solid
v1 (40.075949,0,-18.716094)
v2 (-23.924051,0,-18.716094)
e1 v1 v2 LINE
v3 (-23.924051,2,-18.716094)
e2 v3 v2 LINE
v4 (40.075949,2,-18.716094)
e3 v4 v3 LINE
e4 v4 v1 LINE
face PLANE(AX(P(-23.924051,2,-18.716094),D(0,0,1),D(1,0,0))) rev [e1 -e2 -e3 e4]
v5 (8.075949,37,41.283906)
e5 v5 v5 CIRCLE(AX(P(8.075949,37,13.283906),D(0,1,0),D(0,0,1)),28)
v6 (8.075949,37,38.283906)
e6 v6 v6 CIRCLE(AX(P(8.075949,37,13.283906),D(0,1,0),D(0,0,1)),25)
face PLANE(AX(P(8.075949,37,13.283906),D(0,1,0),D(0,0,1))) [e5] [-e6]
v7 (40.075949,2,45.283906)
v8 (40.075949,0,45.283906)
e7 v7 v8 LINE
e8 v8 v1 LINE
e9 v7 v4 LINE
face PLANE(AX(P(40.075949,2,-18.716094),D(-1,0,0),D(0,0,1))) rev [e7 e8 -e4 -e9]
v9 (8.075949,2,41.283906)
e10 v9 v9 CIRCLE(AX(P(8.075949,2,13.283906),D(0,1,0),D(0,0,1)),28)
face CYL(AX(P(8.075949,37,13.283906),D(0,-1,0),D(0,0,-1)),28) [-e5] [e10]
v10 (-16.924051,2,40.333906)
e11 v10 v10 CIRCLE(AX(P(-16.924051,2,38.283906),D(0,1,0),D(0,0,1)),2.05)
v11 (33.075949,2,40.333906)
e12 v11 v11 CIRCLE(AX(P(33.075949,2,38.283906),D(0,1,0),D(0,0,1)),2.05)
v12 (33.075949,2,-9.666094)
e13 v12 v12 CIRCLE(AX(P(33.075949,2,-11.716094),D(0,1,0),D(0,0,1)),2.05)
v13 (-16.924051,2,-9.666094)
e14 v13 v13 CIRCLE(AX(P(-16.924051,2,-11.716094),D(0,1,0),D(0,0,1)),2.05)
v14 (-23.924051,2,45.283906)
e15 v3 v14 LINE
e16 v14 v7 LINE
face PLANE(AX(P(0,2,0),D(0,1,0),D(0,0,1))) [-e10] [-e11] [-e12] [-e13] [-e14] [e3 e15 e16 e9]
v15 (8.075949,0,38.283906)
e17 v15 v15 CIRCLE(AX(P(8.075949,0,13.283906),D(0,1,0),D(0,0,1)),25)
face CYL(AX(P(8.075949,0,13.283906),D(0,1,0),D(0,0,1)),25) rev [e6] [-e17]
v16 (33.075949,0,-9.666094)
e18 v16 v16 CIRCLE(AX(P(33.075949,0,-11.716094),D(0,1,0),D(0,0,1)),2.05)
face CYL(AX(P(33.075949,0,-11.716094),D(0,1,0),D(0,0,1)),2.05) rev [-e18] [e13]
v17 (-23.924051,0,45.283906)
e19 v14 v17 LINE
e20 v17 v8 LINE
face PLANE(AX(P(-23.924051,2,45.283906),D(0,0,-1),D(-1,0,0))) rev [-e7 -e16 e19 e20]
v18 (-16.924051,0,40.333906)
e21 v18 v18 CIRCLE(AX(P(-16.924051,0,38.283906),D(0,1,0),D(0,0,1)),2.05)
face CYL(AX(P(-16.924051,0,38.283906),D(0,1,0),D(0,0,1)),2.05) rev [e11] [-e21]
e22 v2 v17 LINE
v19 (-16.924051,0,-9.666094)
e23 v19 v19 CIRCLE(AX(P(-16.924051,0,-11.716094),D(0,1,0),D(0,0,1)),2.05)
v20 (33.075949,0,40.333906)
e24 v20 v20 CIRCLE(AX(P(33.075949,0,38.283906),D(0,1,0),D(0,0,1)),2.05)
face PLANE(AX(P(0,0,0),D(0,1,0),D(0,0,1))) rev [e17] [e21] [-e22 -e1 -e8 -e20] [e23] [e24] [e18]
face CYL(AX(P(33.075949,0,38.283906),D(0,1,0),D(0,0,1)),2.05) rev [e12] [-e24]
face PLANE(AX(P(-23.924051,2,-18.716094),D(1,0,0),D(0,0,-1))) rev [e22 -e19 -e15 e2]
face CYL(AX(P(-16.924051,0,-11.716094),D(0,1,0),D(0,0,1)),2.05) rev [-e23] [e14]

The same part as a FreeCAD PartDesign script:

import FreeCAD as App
import Part
import Sketcher

doc = App.newDocument("Part")
params = doc.addObject("Spreadsheet::Sheet", "Params")
for row, (alias, value) in enumerate([
    ("sketch1_width", "64 mm"),
    ("pad1_length", "2 mm"),
    ("sketch2_diameter", "50 mm"),
    ("sketch2_diameter2", "4.1 mm"),
    ("pocket1_length", "2 mm"),
    ("sketch3_diameter", "56 mm"),
    ("sketch3_diameter2", "50 mm"),
    ("pad2_length", "35 mm"),
], start=1):
    params.set(f"A{row}", alias)
    params.set(f"B{row}", "=" + value)
    params.setAlias(f"B{row}", alias)

body = doc.addObject("PartDesign::Body", "Body")

# Sketch on XZ plane
sketch1 = body.newObject("Sketcher::SketchObject", "Sketch")
sketch1.AttachmentSupport = (doc.getObject("XZ_Plane"), [""])
sketch1.MapMode = "FlatFace"
sketch1.addGeometry(Part.LineSegment(App.Vector(-24, -19, 0), App.Vector(-24, 45, 0)), False)
sketch1.addGeometry(Part.LineSegment(App.Vector(-24, 45, 0), App.Vector(40, 45, 0)), False)
sketch1.addGeometry(Part.LineSegment(App.Vector(40, 45, 0), App.Vector(40, -19, 0)), False)
sketch1.addGeometry(Part.LineSegment(App.Vector(40, -19, 0), App.Vector(-24, -19, 0)), False)
sketch1.addConstraint(Sketcher.Constraint("Coincident", 0, 2, 1, 1))
sketch1.addConstraint(Sketcher.Constraint("Coincident", 1, 2, 2, 1))
sketch1.addConstraint(Sketcher.Constraint("Coincident", 2, 2, 3, 1))
sketch1.addConstraint(Sketcher.Constraint("Coincident", 3, 2, 0, 1))
sketch1.addConstraint(Sketcher.Constraint("Vertical", 0))
sketch1.addConstraint(Sketcher.Constraint("Horizontal", 1))
sketch1.addConstraint(Sketcher.Constraint("Vertical", 2))
sketch1.addConstraint(Sketcher.Constraint("Horizontal", 3))
sketch1.addConstraint(Sketcher.Constraint("Equal", 3, 0))
sketch1.addConstraint(Sketcher.Constraint("DistanceX", 1, 1, 1, 2, 64.0))
sketch1.addConstraint(Sketcher.Constraint("DistanceX", 0, 2, -1, 1, 23.924051))
sketch1.addConstraint(Sketcher.Constraint("DistanceY", -1, 1, 0, 2, 45.283906))
sketch1.setExpression("Constraints[9]", "Params.sketch1_width")
pad1 = body.newObject("PartDesign::Pad", "Pad")
pad1.Profile = sketch1
pad1.setExpression("Length", "Params.pad1_length")
pad1.Reversed = True

# Sketch on XZ plane
sketch2 = body.newObject("Sketcher::SketchObject", "Sketch001")
sketch2.AttachmentSupport = (doc.getObject("XZ_Plane"), [""])
sketch2.MapMode = "FlatFace"
sketch2.AttachmentOffset = App.Placement(App.Vector(0, 0, -2), App.Rotation())
sketch2.addGeometry(Part.Circle(App.Vector(-16.9, -11.7, 0), App.Vector(0, 0, 1), 2), False)
sketch2.addGeometry(Part.Circle(App.Vector(33.1, -11.7, 0), App.Vector(0, 0, 1), 2), False)
sketch2.addGeometry(Part.Circle(App.Vector(-16.9, 38.3, 0), App.Vector(0, 0, 1), 2), False)
sketch2.addGeometry(Part.Circle(App.Vector(33.1, 38.3, 0), App.Vector(0, 0, 1), 2), False)
sketch2.addGeometry(Part.Circle(App.Vector(8.1, 13.3, 0), App.Vector(0, 0, 1), 25), False)
sketch2.addConstraint(Sketcher.Constraint("Equal", 0, 1))
sketch2.addConstraint(Sketcher.Constraint("Equal", 1, 2))
sketch2.addConstraint(Sketcher.Constraint("Equal", 2, 3))
sketch2.addConstraint(Sketcher.Constraint("Horizontal", 0, 3, 1, 3))
sketch2.addConstraint(Sketcher.Constraint("Horizontal", 2, 3, 3, 3))
sketch2.addConstraint(Sketcher.Constraint("Vertical", 0, 3, 2, 3))
sketch2.addConstraint(Sketcher.Constraint("Vertical", 1, 3, 3, 3))
sketch2.addConstraint(Sketcher.Constraint("Diameter", 4, 50.0))
sketch2.addConstraint(Sketcher.Constraint("Diameter", 0, 4.1))
sketch2.addConstraint(Sketcher.Constraint("DistanceX", 0, 3, 1, 3, 50.0))
sketch2.addConstraint(Sketcher.Constraint("DistanceY", 0, 3, 2, 3, 50.0))
sketch2.addConstraint(Sketcher.Constraint("DistanceX", 0, 3, 4, 3, 25.0))
sketch2.addConstraint(Sketcher.Constraint("DistanceY", 0, 3, 4, 3, 25.0))
sketch2.addConstraint(Sketcher.Constraint("DistanceX", 0, 3, -1, 1, 16.924051))
sketch2.addConstraint(Sketcher.Constraint("DistanceY", 0, 3, -1, 1, 11.716094))
sketch2.setExpression("Constraints[7]", "Params.sketch2_diameter")
sketch2.setExpression("Constraints[8]", "Params.sketch2_diameter2")
pocket1 = body.newObject("PartDesign::Pocket", "Pocket")
pocket1.Profile = sketch2
pocket1.setExpression("Length", "Params.pocket1_length")
pocket1.Reversed = True

# Sketch on XZ plane
sketch3 = body.newObject("Sketcher::SketchObject", "Sketch002")
sketch3.AttachmentSupport = (doc.getObject("XZ_Plane"), [""])
sketch3.MapMode = "FlatFace"
sketch3.AttachmentOffset = App.Placement(App.Vector(0, 0, -37), App.Rotation())
sketch3.addGeometry(Part.Circle(App.Vector(8, 13, 0), App.Vector(0, 0, 1), 28), False)
sketch3.addGeometry(Part.Circle(App.Vector(8, 13, 0), App.Vector(0, 0, 1), 25), False)
sketch3.addConstraint(Sketcher.Constraint("Coincident", 1, 3, 0, 3))
sketch3.addConstraint(Sketcher.Constraint("Diameter", 0, 56.0))
sketch3.addConstraint(Sketcher.Constraint("Diameter", 1, 50.0))
sketch3.addConstraint(Sketcher.Constraint("DistanceX", -1, 1, 0, 3, 8.075949))
sketch3.addConstraint(Sketcher.Constraint("DistanceY", -1, 1, 0, 3, 13.283906))
sketch3.setExpression("Constraints[1]", "Params.sketch3_diameter")
sketch3.setExpression("Constraints[2]", "Params.sketch3_diameter2")
pad2 = body.newObject("PartDesign::Pad", "Pad001")
pad2.Profile = sketch3
pad2.setExpression("Length", "Params.pad2_length")

doc.recompute()
